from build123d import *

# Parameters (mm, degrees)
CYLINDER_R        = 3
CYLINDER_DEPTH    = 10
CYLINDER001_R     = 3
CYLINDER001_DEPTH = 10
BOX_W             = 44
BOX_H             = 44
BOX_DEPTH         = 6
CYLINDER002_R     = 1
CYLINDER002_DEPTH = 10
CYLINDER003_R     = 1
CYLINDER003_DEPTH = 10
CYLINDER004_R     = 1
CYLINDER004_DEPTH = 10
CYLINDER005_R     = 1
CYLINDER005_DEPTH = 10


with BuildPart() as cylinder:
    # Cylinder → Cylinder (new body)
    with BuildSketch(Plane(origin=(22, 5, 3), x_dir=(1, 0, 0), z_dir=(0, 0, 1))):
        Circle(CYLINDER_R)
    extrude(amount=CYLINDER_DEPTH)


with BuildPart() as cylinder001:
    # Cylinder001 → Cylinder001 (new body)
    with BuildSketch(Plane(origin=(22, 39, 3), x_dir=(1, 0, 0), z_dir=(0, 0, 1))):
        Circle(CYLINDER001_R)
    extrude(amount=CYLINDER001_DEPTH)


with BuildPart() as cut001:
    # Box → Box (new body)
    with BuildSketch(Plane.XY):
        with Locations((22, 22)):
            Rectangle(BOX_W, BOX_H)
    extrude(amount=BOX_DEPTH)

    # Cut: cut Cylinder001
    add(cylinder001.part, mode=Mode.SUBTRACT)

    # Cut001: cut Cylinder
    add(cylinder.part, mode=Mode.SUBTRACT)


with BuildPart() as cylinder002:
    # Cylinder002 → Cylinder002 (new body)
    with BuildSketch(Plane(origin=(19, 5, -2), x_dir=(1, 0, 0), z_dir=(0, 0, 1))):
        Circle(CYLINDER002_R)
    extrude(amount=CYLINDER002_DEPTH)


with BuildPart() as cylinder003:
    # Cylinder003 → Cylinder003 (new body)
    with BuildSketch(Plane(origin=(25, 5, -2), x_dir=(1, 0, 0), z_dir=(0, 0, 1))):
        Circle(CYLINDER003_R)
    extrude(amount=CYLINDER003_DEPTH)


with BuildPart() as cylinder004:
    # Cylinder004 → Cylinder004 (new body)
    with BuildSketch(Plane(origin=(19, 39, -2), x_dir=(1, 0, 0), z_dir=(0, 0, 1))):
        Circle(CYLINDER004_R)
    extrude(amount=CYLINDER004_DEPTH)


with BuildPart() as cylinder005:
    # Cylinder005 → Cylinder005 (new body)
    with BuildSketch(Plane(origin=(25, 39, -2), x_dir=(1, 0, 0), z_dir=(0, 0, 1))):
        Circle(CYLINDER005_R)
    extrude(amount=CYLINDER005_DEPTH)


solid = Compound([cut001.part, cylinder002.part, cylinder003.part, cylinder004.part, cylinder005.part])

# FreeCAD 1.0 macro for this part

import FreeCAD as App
import Part
import Sketcher
from FreeCAD import Vector
Q = App.Units.Quantity

doc = App.newDocument("Part")
body = doc.addObject("PartDesign::Body", "Body")

sketch1 = body.newObject("Sketcher::SketchObject", "Sketch")
sketch1.AttachmentSupport = (doc.getObject("XY_Plane"), [""])
sketch1.MapMode = "FlatFace"
sketch1.AttachmentOffset = App.Placement(Vector(0, 0, 3), App.Rotation())
sketch1.addGeometry(Part.Circle(Vector(22, 5, 0), Vector(0, 0, 1), 3), False)
sketch1.addConstraint([
    Sketcher.Constraint("Diameter", 0, Q("6 mm")),
    Sketcher.Constraint("DistanceX", -1, 1, 0, 3, Q("22 mm")),
    Sketcher.Constraint("DistanceY", -1, 1, 0, 3, Q("5 mm")),
])
pad1 = body.newObject("PartDesign::Pad", "Pad")
pad1.Profile = sketch1
pad1.Length = 10
body2 = doc.addObject("PartDesign::Body", "Body001")

sketch2 = body2.newObject("Sketcher::SketchObject", "Sketch001")
sketch2.AttachmentSupport = (doc.getObject("XY_Plane001"), [""])
sketch2.MapMode = "FlatFace"
sketch2.AttachmentOffset = App.Placement(Vector(0, 0, 3), App.Rotation())
sketch2.addGeometry(Part.Circle(Vector(22, 39, 0), Vector(0, 0, 1), 3), False)
sketch2.addConstraint([
    Sketcher.Constraint("Diameter", 0, Q("6 mm")),
    Sketcher.Constraint("DistanceX", -1, 1, 0, 3, Q("22 mm")),
    Sketcher.Constraint("DistanceY", -1, 1, 0, 3, Q("39 mm")),
])
pad2 = body2.newObject("PartDesign::Pad", "Pad001")
pad2.Profile = sketch2
pad2.Length = 10
body3 = doc.addObject("PartDesign::Body", "Body002")

sketch3 = body3.newObject("Sketcher::SketchObject", "Sketch002")
sketch3.AttachmentSupport = (doc.getObject("XY_Plane002"), [""])
sketch3.MapMode = "FlatFace"
sketch3.addGeometry([
    Part.LineSegment(Vector(0, 44, 0), Vector(0, 0, 0)),
    Part.LineSegment(Vector(0, 0, 0), Vector(44, 0, 0)),
    Part.LineSegment(Vector(44, 0, 0), Vector(44, 44, 0)),
    Part.LineSegment(Vector(44, 44, 0), Vector(0, 44, 0)),
], False)
sketch3.addConstraint([
    Sketcher.Constraint("Coincident", 0, 2, 1, 1),
    Sketcher.Constraint("Coincident", 1, 2, 2, 1),
    Sketcher.Constraint("Coincident", 2, 2, 3, 1),
    Sketcher.Constraint("Coincident", 3, 2, 0, 1),
    Sketcher.Constraint("Vertical", 0),
    Sketcher.Constraint("Horizontal", 1),
    Sketcher.Constraint("Vertical", 2),
    Sketcher.Constraint("Horizontal", 3),
    Sketcher.Constraint("Coincident", 0, 2, -1, 1),
    Sketcher.Constraint("Equal", 3, 0),
    Sketcher.Constraint("DistanceX", 1, 1, 1, 2, Q("44 mm")),
])
pad3 = body3.newObject("PartDesign::Pad", "Pad002")
pad3.Profile = sketch3
pad3.Length = 6
doc.recompute()

boolean = body3.newObject("PartDesign::Boolean", "Boolean")
boolean.Type = "Cut"
boolean.addObjects([body2])
doc.recompute()

boolean2 = body3.newObject("PartDesign::Boolean", "Boolean001")
boolean2.Type = "Cut"
boolean2.addObjects([body])
body4 = doc.addObject("PartDesign::Body", "Body003")

sketch4 = body4.newObject("Sketcher::SketchObject", "Sketch003")
sketch4.AttachmentSupport = (doc.getObject("XY_Plane003"), [""])
sketch4.MapMode = "FlatFace"
sketch4.AttachmentOffset = App.Placement(Vector(0, 0, -2), App.Rotation())
sketch4.addGeometry(Part.Circle(Vector(19, 5, 0), Vector(0, 0, 1), 1), False)
sketch4.addConstraint([
    Sketcher.Constraint("Diameter", 0, Q("2 mm")),
    Sketcher.Constraint("DistanceX", -1, 1, 0, 3, Q("19 mm")),
    Sketcher.Constraint("DistanceY", -1, 1, 0, 3, Q("5 mm")),
])
pad4 = body4.newObject("PartDesign::Pad", "Pad003")
pad4.Profile = sketch4
pad4.Length = 10
body5 = doc.addObject("PartDesign::Body", "Body004")

sketch5 = body5.newObject("Sketcher::SketchObject", "Sketch004")
sketch5.AttachmentSupport = (doc.getObject("XY_Plane004"), [""])
sketch5.MapMode = "FlatFace"
sketch5.AttachmentOffset = App.Placement(Vector(0, 0, -2), App.Rotation())
sketch5.addGeometry(Part.Circle(Vector(25, 5, 0), Vector(0, 0, 1), 1), False)
sketch5.addConstraint([
    Sketcher.Constraint("Diameter", 0, Q("2 mm")),
    Sketcher.Constraint("DistanceX", -1, 1, 0, 3, Q("25 mm")),
    Sketcher.Constraint("DistanceY", -1, 1, 0, 3, Q("5 mm")),
])
pad5 = body5.newObject("PartDesign::Pad", "Pad004")
pad5.Profile = sketch5
pad5.Length = 10
body6 = doc.addObject("PartDesign::Body", "Body005")

sketch6 = body6.newObject("Sketcher::SketchObject", "Sketch005")
sketch6.AttachmentSupport = (doc.getObject("XY_Plane005"), [""])
sketch6.MapMode = "FlatFace"
sketch6.AttachmentOffset = App.Placement(Vector(0, 0, -2), App.Rotation())
sketch6.addGeometry(Part.Circle(Vector(19, 39, 0), Vector(0, 0, 1), 1), False)
sketch6.addConstraint([
    Sketcher.Constraint("Diameter", 0, Q("2 mm")),
    Sketcher.Constraint("DistanceX", -1, 1, 0, 3, Q("19 mm")),
    Sketcher.Constraint("DistanceY", -1, 1, 0, 3, Q("39 mm")),
])
pad6 = body6.newObject("PartDesign::Pad", "Pad005")
pad6.Profile = sketch6
pad6.Length = 10
body7 = doc.addObject("PartDesign::Body", "Body006")

sketch7 = body7.newObject("Sketcher::SketchObject", "Sketch006")
sketch7.AttachmentSupport = (doc.getObject("XY_Plane006"), [""])
sketch7.MapMode = "FlatFace"
sketch7.AttachmentOffset = App.Placement(Vector(0, 0, -2), App.Rotation())
sketch7.addGeometry(Part.Circle(Vector(25, 39, 0), Vector(0, 0, 1), 1), False)
sketch7.addConstraint([
    Sketcher.Constraint("Diameter", 0, Q("2 mm")),
    Sketcher.Constraint("DistanceX", -1, 1, 0, 3, Q("25 mm")),
    Sketcher.Constraint("DistanceY", -1, 1, 0, 3, Q("39 mm")),
])
pad7 = body7.newObject("PartDesign::Pad", "Pad006")
pad7.Profile = sketch7
pad7.Length = 10

doc.recompute()
